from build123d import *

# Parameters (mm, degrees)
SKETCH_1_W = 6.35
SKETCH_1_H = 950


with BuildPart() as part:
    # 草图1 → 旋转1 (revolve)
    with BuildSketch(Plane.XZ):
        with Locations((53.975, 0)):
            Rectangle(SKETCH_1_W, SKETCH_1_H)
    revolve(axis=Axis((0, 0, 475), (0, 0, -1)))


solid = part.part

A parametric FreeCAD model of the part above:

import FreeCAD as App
import Part
import Sketcher


def add_polygon(sketch, points):
    """Adds a closed chain of lines whose ends are joined by coincident constraints."""
    first, n = sketch.GeometryCount, len(points)
    for a, b in zip(points, points[1:] + points[:1]):
        sketch.addGeometry(Part.LineSegment(App.Vector(*a, 0), App.Vector(*b, 0)), False)
    for i in range(n):
        sketch.addConstraint(Sketcher.Constraint("Coincident", first + i, 2, first + (i + 1) % n, 1))

doc = App.newDocument("Part")
params = doc.addObject("Spreadsheet::Sheet", "Params")
for row, (alias, value) in enumerate([
    ("sketch1_height", "950 mm"),
    ("sketch1_width", "6.35 mm"),
    ("revolution_angle", "360 deg"),
], start=1):
    params.set(f"A{row}", alias)
    params.set(f"B{row}", "=" + value)
    params.setAlias(f"B{row}", alias)

body = doc.addObject("PartDesign::Body", "Body")

# Sketch on XZ plane
sketch1 = body.newObject("Sketcher::SketchObject", "Sketch")
sketch1.AttachmentSupport = (doc.getObject("XZ_Plane"), [""])
sketch1.MapMode = "FlatFace"
add_polygon(sketch1, [(51, 475), (51, -475), (57, -475), (57, 475)])  # lines 0-3
sketch1.addConstraint(Sketcher.Constraint("Vertical", 0))
sketch1.addConstraint(Sketcher.Constraint("Horizontal", 1))
sketch1.addConstraint(Sketcher.Constraint("Vertical", 2))
sketch1.addConstraint(Sketcher.Constraint("Horizontal", 3))
sketch1.addConstraint(Sketcher.Constraint("DistanceY", 0, 2, 0, 1, 950.0))
sketch1.addConstraint(Sketcher.Constraint("DistanceY", 0, 2, -1, 1, 475.0))
sketch1.addConstraint(Sketcher.Constraint("DistanceX", 1, 1, 1, 2, 6.35))
sketch1.addConstraint(Sketcher.Constraint("DistanceX", -1, 1, 0, 2, 50.8))
sketch1.setExpression("Constraints[8]", "Params.sketch1_height")
sketch1.setExpression("Constraints[10]", "Params.sketch1_width")
revolution = body.newObject("PartDesign::Revolution", "Revolution")
revolution.Profile = sketch1
revolution.ReferenceAxis = (sketch1, ["V_Axis"])
revolution.setExpression("Angle", "Params.revolution_angle")

doc.recompute()
